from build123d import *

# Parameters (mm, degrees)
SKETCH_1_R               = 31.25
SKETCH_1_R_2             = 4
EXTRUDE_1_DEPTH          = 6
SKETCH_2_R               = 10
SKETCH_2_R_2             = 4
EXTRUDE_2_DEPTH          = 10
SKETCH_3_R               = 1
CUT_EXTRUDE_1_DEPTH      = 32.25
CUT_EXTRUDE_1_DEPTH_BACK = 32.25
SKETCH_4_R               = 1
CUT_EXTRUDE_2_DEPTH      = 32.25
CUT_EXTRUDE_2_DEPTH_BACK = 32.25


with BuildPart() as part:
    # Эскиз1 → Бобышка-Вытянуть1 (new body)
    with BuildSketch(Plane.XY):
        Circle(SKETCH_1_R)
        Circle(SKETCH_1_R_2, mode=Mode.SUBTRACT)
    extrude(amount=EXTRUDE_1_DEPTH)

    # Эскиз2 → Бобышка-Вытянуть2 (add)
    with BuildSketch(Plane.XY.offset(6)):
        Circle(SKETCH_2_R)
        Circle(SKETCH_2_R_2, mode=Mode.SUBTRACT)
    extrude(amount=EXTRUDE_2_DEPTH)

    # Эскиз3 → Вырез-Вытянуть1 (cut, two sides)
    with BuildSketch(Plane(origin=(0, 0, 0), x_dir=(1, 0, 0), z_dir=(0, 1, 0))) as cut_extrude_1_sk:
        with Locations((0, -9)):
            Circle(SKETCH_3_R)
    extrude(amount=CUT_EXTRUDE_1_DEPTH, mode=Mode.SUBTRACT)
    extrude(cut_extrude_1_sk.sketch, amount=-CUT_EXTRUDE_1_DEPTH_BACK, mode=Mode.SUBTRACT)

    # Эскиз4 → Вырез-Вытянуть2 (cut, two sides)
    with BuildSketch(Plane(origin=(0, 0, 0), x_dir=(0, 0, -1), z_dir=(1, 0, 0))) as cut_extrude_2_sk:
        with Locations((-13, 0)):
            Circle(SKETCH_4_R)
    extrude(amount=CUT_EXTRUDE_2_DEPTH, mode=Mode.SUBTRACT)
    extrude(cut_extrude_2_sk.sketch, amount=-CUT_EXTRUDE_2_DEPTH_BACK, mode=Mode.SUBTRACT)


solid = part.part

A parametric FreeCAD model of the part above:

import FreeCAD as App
import Part
import Sketcher
Q = App.Units.Quantity

doc = App.newDocument("Part")
body = doc.addObject("PartDesign::Body", "Body")

# Sketch on XY plane
sketch1 = doc.addObject("Sketcher::SketchObject", "Sketch")
body.addObject(sketch1)
sketch1.AttachmentSupport = (doc.XY_Plane, [""])
sketch1.MapMode = "FlatFace"
sketch1.addGeometry([
    Part.Circle(App.Vector(0, 0, 0), App.Vector(0, 0, 1), 31.2),
    Part.Circle(App.Vector(0, 0, 0), App.Vector(0, 0, 1), 4),
], False)
sketch1.addConstraint([
    Sketcher.Constraint("Coincident", 0, 3, -1, 1),
    Sketcher.Constraint("Coincident", 1, 3, -1, 1),
    Sketcher.Constraint("Diameter", 1, Q("8 mm")),
    Sketcher.Constraint("Diameter", 0, Q("62.5 mm")),
])
pad1 = doc.addObject("PartDesign::Pad", "Pad")
body.addObject(pad1)
pad1.Profile = sketch1
pad1.Length = 6

# Sketch on XY plane
sketch2 = doc.addObject("Sketcher::SketchObject", "Sketch001")
body.addObject(sketch2)
sketch2.AttachmentSupport = (doc.XY_Plane, [""])
sketch2.MapMode = "FlatFace"
sketch2.AttachmentOffset = App.Placement(App.Vector(0, 0, 6), App.Rotation())
sketch2.addGeometry([
    Part.Circle(App.Vector(0, 0, 0), App.Vector(0, 0, 1), 10),
    Part.Circle(App.Vector(0, 0, 0), App.Vector(0, 0, 1), 4),
], False)
sketch2.addConstraint([
    Sketcher.Constraint("Coincident", 0, 3, -1, 1),
    Sketcher.Constraint("Coincident", 1, 3, -1, 1),
    Sketcher.Constraint("Diameter", 0, Q("20 mm")),
    Sketcher.Constraint("Diameter", 1, Q("8 mm")),
])
pad2 = doc.addObject("PartDesign::Pad", "Pad001")
body.addObject(pad2)
pad2.Profile = sketch2
pad2.Length = 10

# Sketch on XZ plane
sketch3 = doc.addObject("Sketcher::SketchObject", "Sketch002")
body.addObject(sketch3)
sketch3.AttachmentSupport = (doc.XZ_Plane, [""])
sketch3.MapMode = "FlatFace"
sketch3.addGeometry(Part.Circle(App.Vector(0, 9, 0), App.Vector(0, 0, 1), 1), False)
sketch3.addConstraint([
    Sketcher.Constraint("PointOnObject", 0, 3, -2),
    Sketcher.Constraint("Diameter", 0, Q("2 mm")),
    Sketcher.Constraint("DistanceY", -1, 1, 0, 3, Q("9 mm")),
])
pocket1 = doc.addObject("PartDesign::Pocket", "Pocket")
body.addObject(pocket1)
pocket1.Profile = sketch3
pocket1.Type = "ThroughAll"
pocket1.Midplane = True

# Sketch on YZ plane
sketch4 = doc.addObject("Sketcher::SketchObject", "Sketch003")
body.addObject(sketch4)
sketch4.AttachmentSupport = (doc.YZ_Plane, [""])
sketch4.MapMode = "FlatFace"
sketch4.addGeometry(Part.Circle(App.Vector(0, 13, 0), App.Vector(0, 0, 1), 1), False)
sketch4.addConstraint([
    Sketcher.Constraint("PointOnObject", 0, 3, -2),
    Sketcher.Constraint("Diameter", 0, Q("2 mm")),
    Sketcher.Constraint("DistanceY", -1, 1, 0, 3, Q("13 mm")),
])
pocket2 = doc.addObject("PartDesign::Pocket", "Pocket001")
body.addObject(pocket2)
pocket2.Profile = sketch4
pocket2.Type = "ThroughAll"
pocket2.Midplane = True

doc.recompute()
